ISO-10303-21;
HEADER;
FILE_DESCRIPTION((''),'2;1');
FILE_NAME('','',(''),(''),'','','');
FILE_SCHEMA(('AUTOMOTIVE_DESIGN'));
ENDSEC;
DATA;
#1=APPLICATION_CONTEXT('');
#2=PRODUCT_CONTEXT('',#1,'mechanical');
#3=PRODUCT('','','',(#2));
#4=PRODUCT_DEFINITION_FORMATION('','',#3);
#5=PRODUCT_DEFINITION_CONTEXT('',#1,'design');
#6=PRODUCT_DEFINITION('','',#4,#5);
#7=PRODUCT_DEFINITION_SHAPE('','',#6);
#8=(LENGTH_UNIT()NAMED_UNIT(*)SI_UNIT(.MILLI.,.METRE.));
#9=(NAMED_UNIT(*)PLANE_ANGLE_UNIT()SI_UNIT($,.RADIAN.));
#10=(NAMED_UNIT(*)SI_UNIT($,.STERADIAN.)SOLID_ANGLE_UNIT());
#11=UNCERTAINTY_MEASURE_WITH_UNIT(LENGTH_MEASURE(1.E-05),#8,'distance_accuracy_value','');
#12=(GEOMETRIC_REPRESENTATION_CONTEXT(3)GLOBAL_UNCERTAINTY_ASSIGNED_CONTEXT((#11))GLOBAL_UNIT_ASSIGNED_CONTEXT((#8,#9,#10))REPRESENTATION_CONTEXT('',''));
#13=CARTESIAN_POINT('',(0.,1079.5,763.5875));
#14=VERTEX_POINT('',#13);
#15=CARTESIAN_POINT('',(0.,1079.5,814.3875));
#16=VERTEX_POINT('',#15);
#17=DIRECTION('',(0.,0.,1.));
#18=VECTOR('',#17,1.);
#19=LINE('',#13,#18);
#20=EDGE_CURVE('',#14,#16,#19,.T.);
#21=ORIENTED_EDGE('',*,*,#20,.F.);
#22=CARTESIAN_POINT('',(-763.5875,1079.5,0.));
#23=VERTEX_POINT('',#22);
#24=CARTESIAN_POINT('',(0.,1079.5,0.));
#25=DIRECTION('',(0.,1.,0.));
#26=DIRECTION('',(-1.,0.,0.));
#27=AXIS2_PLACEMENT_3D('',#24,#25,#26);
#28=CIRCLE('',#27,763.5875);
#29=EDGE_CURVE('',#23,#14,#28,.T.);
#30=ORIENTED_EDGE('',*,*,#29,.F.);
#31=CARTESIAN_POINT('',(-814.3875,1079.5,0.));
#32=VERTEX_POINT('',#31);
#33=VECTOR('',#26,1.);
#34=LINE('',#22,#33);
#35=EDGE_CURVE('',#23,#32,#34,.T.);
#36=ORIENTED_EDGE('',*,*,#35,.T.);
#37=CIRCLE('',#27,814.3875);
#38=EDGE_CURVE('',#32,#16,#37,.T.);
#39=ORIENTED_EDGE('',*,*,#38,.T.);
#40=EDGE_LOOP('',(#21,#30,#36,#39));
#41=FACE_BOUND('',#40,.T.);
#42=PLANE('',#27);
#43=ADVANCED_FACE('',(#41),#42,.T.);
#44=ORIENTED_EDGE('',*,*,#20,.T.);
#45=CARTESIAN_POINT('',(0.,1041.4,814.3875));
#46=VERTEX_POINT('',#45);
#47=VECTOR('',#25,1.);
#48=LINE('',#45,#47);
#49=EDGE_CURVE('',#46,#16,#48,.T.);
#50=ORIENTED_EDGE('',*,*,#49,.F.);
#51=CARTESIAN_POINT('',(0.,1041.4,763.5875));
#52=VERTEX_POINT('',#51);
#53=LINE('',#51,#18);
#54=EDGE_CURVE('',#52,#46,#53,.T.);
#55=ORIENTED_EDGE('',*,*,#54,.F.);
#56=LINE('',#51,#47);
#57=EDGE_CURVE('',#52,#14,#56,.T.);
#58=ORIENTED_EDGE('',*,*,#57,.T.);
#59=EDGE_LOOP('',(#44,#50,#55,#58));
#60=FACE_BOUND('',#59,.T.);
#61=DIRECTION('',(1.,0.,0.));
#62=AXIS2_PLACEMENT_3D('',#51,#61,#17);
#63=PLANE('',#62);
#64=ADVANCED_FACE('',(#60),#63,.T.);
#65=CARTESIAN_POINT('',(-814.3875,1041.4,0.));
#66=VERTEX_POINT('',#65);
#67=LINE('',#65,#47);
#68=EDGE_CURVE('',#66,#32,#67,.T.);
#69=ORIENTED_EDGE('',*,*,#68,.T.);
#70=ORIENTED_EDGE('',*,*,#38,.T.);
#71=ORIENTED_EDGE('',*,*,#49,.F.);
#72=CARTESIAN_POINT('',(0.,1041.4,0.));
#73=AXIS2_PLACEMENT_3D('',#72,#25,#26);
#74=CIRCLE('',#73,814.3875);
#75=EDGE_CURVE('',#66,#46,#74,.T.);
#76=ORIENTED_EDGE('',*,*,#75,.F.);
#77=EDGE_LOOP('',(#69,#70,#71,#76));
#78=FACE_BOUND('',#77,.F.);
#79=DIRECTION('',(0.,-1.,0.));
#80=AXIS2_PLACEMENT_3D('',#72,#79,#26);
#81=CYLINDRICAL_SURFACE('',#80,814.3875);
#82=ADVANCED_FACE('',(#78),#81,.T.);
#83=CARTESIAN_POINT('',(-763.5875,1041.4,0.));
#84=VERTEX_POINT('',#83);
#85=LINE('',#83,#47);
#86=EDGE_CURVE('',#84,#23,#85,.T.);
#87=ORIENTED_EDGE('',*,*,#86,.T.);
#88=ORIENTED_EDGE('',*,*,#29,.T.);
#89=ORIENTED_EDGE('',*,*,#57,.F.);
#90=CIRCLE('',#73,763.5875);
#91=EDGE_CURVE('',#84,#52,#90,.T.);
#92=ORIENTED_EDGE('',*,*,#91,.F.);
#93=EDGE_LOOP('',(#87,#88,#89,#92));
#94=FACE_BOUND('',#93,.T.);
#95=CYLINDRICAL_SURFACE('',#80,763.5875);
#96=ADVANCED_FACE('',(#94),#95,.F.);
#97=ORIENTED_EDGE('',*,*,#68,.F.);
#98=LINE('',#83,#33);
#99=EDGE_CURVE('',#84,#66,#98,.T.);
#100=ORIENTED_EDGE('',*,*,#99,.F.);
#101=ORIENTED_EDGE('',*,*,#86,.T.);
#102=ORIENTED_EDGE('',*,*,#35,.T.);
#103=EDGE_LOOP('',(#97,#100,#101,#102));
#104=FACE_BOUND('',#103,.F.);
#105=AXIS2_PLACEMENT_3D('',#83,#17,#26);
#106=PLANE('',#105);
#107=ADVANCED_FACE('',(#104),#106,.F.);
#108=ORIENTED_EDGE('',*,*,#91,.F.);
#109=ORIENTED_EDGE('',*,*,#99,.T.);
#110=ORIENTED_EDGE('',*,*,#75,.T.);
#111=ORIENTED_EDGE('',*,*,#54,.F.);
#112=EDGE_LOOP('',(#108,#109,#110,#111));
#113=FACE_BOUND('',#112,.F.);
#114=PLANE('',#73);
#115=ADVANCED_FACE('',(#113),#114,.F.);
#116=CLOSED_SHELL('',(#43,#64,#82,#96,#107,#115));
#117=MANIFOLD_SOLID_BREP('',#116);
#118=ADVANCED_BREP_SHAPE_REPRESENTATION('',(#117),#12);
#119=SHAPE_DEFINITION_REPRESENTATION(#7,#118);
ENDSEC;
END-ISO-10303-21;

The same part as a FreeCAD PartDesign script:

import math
import FreeCAD as App
import Part
import Sketcher
from FreeCAD import Vector
Q = App.Units.Quantity

doc = App.newDocument("Part")
params = doc.addObject("Spreadsheet::Sheet", "Params")
for row, (alias, value) in enumerate([
    ("sketch1_radius", "30.0625 in"),
    ("sketch1_radius2", "32.0625 in"),
    ("pad1_length", "1.5 in"),
], start=1):
    params.set(f"A{row}", alias)
    params.set(f"B{row}", "=" + value)
    params.setAlias(f"B{row}", alias)

body = doc.addObject("PartDesign::Body", "Body")

# Sketch on XZ plane
sketch1 = doc.addObject("Sketcher::SketchObject", "Sketch")
body.addObject(sketch1)
sketch1.AttachmentSupport = (doc.XZ_Plane, [""])
sketch1.MapMode = "FlatFace"
sketch1.AttachmentOffset = App.Placement(Vector(0, 0, -41 * 25.4), App.Rotation())
sketch1.addGeometry(Part.ArcOfCircle(Part.Circle(Vector(0, 0, 0), Vector(0, 0, 1), 764), math.radians(90), math.radians(180)), False)
sketch1.addGeometry(Part.LineSegment(Vector(-764, 0, 0), Vector(-814, 0, 0)), False)
sketch1.addGeometry(Part.ArcOfCircle(Part.Circle(Vector(0, 0, 0), Vector(0, 0, 1), 814), math.radians(90), math.radians(180)), False)
sketch1.addGeometry(Part.LineSegment(Vector(0, 814, 0), Vector(0, 764, 0)), False)
sketch1.addConstraint(Sketcher.Constraint("Coincident", 0, 2, 1, 1))
sketch1.addConstraint(Sketcher.Constraint("Coincident", 1, 2, 2, 2))
sketch1.addConstraint(Sketcher.Constraint("Coincident", 2, 1, 3, 1))
sketch1.addConstraint(Sketcher.Constraint("Coincident", 3, 2, 0, 1))
sketch1.addConstraint(Sketcher.Constraint("Horizontal", 1))
sketch1.addConstraint(Sketcher.Constraint("Vertical", 3))
sketch1.addConstraint(Sketcher.Constraint("Coincident", 0, 3, -1, 1))
sketch1.addConstraint(Sketcher.Constraint("Coincident", 2, 3, -1, 1))
sketch1.addConstraint(Sketcher.Constraint("PointOnObject", 1, 2, -1))
sketch1.addConstraint(Sketcher.Constraint("PointOnObject", 3, 2, -2))
sketch1.addConstraint(Sketcher.Constraint("Radius", 0, Q("30.0625 in")))
sketch1.addConstraint(Sketcher.Constraint("Radius", 2, Q("32.0625 in")))
sketch1.setExpression("Constraints[10]", "Params.sketch1_radius")
sketch1.setExpression("Constraints[11]", "Params.sketch1_radius2")
pad1 = doc.addObject("PartDesign::Pad", "Pad")
body.addObject(pad1)
pad1.Profile = sketch1
pad1.setExpression("Length", "Params.pad1_length")
pad1.Reversed = True

doc.recompute()
